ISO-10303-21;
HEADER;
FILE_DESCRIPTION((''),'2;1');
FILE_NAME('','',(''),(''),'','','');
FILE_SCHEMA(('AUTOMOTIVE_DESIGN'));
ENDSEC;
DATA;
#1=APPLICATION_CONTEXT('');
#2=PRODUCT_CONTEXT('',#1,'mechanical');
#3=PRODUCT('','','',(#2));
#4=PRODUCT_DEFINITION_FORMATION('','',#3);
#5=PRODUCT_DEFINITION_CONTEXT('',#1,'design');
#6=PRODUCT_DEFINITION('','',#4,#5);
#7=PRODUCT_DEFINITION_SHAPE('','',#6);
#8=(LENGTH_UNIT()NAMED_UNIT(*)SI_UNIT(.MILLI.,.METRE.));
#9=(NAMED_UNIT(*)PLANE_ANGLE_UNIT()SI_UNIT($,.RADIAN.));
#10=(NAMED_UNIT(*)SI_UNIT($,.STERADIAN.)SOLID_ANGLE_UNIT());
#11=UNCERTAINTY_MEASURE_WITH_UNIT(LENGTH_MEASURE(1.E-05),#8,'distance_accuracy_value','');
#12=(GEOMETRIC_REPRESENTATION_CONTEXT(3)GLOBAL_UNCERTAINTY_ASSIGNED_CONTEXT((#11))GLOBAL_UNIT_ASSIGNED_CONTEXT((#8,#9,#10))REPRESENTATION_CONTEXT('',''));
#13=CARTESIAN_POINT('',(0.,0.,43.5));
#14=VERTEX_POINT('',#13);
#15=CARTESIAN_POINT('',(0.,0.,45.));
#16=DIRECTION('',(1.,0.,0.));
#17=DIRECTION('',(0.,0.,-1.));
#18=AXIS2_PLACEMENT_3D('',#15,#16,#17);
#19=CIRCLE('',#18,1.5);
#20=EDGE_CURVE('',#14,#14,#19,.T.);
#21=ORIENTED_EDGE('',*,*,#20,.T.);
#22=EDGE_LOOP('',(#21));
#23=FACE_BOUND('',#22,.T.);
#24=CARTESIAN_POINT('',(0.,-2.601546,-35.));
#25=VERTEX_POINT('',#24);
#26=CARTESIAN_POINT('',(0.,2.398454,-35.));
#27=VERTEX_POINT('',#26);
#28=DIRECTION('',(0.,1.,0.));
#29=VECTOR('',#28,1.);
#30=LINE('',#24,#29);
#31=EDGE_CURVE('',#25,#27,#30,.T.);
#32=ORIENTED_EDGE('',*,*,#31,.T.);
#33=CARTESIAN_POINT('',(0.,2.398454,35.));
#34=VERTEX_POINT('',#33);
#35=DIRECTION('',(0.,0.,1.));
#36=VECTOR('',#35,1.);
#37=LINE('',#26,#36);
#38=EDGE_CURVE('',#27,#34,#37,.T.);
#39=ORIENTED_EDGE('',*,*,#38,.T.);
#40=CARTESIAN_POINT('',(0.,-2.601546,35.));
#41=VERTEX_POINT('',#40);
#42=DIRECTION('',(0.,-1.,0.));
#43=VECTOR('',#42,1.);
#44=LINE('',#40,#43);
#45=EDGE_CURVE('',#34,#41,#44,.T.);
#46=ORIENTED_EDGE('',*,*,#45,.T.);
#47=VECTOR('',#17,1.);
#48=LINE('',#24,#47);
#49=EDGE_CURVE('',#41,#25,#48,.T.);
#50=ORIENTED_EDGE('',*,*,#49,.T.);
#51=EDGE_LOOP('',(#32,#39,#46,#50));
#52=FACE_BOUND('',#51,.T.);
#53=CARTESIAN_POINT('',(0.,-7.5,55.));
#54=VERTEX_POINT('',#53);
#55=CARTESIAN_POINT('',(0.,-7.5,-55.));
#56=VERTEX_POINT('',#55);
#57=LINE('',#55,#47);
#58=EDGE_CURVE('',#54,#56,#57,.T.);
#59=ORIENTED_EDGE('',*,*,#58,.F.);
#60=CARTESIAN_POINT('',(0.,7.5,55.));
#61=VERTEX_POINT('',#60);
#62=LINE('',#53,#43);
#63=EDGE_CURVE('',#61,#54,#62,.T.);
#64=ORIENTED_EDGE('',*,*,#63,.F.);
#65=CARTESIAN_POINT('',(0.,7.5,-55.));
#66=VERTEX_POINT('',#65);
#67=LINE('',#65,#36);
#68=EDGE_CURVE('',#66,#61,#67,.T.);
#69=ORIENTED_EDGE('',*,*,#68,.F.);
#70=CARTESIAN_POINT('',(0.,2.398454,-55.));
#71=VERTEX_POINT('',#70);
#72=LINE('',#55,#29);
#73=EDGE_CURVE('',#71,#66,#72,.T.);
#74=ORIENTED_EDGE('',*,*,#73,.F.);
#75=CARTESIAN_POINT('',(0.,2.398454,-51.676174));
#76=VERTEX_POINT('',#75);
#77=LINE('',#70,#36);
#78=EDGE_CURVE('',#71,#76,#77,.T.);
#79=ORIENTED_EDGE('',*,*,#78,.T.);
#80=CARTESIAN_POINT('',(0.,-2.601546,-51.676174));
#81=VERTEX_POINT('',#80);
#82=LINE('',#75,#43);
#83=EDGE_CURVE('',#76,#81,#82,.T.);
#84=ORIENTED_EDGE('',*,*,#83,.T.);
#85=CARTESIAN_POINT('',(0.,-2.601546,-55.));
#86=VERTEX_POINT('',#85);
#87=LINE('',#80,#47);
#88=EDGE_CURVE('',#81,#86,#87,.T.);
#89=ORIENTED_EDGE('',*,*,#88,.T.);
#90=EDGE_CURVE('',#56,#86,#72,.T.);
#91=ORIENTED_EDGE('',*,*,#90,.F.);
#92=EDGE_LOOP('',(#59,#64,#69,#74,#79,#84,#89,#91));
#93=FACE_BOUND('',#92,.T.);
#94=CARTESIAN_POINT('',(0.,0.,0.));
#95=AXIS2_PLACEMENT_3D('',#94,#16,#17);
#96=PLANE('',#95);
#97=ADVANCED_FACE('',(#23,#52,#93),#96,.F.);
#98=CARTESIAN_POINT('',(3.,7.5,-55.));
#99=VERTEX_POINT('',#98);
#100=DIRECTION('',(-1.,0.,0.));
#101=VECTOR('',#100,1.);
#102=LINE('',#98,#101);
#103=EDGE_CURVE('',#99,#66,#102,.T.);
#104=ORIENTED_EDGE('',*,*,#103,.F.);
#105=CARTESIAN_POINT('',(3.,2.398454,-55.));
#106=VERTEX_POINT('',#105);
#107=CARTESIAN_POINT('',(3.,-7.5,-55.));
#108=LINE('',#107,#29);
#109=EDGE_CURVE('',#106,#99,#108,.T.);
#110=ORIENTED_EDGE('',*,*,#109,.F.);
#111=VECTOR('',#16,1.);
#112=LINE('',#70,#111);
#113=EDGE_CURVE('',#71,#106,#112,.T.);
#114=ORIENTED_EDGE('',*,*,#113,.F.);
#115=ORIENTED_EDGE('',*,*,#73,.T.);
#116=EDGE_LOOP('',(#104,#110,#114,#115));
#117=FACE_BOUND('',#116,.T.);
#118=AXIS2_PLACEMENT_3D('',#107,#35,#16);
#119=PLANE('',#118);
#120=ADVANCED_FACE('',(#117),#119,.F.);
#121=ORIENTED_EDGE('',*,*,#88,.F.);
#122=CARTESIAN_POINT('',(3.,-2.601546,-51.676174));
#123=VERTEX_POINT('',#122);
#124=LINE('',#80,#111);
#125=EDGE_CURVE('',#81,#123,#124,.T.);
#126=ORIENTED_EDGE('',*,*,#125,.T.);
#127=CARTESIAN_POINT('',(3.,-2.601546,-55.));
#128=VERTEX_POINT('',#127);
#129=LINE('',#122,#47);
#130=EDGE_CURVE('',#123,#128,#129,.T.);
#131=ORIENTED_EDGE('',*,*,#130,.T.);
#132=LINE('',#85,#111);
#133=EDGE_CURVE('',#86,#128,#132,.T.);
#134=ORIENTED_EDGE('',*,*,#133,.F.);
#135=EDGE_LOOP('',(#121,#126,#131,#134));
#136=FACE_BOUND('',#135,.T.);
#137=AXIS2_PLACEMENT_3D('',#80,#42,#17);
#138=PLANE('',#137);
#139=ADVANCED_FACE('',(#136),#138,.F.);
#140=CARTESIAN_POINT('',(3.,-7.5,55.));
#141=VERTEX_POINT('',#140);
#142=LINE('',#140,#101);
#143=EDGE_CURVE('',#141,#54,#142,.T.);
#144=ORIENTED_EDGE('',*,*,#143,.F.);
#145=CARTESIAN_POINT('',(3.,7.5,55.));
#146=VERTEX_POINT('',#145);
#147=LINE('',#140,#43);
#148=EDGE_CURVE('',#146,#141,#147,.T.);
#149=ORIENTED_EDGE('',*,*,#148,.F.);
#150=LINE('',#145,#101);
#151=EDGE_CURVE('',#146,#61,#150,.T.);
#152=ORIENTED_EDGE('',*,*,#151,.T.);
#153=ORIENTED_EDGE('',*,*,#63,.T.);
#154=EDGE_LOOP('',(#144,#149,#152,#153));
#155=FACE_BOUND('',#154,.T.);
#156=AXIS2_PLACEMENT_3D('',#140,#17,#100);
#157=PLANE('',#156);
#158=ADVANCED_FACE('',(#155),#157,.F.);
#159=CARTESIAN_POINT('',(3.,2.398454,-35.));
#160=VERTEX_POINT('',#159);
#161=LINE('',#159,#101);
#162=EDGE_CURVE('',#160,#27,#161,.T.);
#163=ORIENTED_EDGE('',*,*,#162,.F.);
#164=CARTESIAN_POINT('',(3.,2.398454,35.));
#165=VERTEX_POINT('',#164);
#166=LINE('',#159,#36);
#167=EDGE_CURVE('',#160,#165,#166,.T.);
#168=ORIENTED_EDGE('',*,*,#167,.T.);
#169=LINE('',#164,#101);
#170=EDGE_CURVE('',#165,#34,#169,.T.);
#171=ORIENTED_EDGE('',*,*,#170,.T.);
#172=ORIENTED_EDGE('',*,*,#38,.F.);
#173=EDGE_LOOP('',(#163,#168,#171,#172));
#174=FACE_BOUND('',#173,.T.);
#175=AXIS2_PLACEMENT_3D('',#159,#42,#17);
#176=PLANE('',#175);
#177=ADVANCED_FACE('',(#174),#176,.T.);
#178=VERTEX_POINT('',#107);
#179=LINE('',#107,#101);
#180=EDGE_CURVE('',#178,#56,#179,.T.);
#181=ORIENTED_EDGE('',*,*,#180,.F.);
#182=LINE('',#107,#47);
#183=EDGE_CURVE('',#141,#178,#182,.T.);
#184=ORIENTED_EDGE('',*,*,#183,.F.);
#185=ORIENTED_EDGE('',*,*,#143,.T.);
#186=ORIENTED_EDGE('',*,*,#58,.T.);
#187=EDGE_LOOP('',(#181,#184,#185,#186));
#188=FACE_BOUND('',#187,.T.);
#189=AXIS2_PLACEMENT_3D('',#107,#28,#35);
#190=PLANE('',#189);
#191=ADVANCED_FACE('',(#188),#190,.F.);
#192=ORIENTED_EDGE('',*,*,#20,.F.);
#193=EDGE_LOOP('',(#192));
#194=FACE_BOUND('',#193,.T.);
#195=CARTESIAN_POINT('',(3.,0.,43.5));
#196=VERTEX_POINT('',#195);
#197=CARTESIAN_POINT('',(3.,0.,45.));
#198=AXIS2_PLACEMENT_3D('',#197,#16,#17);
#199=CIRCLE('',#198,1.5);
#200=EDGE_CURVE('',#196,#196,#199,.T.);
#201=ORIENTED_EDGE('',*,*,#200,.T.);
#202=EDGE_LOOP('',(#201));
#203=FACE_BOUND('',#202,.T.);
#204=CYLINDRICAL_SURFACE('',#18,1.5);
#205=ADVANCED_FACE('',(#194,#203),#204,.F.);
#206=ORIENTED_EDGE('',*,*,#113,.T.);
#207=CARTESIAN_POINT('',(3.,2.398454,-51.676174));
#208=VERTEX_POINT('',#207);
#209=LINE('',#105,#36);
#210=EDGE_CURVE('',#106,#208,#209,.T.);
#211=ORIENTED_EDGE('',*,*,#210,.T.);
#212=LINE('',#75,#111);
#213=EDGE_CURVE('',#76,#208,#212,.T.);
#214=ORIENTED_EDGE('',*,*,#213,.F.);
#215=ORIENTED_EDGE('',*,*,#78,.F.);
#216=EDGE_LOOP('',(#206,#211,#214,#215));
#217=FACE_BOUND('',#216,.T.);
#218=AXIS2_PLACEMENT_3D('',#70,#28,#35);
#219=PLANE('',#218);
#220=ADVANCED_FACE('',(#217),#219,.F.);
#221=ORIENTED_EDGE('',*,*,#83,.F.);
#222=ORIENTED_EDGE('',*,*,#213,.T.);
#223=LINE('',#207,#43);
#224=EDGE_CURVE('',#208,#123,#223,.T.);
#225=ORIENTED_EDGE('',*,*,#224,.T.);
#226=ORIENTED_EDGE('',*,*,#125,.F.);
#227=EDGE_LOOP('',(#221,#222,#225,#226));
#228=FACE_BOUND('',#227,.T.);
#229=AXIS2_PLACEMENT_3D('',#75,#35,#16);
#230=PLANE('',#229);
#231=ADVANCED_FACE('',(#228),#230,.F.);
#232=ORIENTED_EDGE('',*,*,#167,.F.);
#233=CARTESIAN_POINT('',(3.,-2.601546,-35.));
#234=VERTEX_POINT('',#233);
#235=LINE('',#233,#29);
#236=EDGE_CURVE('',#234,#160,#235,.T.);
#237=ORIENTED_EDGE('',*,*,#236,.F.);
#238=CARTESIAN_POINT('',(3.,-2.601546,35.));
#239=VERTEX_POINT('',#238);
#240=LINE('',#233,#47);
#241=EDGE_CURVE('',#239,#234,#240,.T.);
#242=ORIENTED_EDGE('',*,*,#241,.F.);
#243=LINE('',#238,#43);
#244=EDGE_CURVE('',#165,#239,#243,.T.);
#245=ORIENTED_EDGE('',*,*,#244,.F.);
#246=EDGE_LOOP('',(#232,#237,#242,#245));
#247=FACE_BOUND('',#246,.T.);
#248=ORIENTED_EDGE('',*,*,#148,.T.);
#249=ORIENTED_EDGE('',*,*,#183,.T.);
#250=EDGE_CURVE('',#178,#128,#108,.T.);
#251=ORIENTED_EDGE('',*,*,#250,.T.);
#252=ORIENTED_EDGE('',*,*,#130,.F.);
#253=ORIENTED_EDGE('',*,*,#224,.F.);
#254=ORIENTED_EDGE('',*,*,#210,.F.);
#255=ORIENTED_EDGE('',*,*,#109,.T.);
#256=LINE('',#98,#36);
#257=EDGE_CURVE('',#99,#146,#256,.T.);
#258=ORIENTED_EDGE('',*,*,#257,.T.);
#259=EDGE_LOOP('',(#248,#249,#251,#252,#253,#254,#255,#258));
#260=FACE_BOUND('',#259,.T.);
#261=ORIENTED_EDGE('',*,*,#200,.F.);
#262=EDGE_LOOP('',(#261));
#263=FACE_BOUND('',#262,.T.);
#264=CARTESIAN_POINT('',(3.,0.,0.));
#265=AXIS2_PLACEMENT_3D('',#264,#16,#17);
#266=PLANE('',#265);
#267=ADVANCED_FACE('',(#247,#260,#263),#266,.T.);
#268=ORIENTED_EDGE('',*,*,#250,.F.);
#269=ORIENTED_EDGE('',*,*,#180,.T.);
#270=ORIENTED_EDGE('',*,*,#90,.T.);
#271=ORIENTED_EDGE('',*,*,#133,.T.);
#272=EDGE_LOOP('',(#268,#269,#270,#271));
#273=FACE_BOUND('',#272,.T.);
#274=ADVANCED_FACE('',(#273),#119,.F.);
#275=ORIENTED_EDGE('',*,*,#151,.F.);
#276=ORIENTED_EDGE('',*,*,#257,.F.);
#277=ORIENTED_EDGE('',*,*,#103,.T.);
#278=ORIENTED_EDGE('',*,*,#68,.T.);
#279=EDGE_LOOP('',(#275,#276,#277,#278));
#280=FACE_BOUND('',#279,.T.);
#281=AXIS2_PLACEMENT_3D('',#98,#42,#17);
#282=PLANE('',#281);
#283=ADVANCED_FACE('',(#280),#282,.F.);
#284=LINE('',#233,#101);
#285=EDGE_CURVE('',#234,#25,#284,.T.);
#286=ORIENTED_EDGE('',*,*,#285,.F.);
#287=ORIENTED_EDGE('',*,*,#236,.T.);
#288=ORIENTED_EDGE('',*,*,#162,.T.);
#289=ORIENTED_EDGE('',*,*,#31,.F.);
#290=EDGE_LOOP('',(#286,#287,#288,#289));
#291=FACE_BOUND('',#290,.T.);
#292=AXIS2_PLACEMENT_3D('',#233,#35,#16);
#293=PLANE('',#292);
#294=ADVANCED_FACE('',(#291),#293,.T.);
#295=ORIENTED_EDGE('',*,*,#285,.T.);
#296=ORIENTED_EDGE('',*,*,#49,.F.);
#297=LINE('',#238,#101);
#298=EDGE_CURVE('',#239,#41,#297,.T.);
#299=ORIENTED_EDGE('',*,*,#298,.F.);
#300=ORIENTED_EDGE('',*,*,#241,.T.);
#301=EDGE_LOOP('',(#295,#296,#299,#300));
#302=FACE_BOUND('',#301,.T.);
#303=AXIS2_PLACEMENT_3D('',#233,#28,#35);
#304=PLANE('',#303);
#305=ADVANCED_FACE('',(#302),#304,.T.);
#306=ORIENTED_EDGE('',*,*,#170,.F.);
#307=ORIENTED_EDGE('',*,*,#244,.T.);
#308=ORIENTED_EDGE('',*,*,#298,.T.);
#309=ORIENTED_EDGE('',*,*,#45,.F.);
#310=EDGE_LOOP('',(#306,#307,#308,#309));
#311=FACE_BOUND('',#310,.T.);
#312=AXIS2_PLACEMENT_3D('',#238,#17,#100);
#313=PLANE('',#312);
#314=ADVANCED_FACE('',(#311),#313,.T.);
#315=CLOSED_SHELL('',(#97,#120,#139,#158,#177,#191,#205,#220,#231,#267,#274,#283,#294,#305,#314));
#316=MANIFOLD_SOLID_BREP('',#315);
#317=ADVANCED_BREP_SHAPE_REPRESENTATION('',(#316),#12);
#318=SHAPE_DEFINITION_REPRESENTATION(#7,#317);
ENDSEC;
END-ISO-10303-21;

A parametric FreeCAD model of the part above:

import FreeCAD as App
import Part
import Sketcher
from FreeCAD import Vector
Q = App.Units.Quantity

doc = App.newDocument("Part")
params = doc.addObject("Spreadsheet::Sheet", "Params")
for row, (alias, value) in enumerate([
    ("sketch1_width", "15 mm"),
    ("sketch1_width2", "5 mm"),
    ("sketch1_height", "110 mm"),
    ("sketch1_height2", "70 mm"),
    ("pad1_length", "3 mm"),
    ("sketch2_diameter", "3 mm"),
    ("sketch2_width", "5 mm"),
], start=1):
    params.set(f"A{row}", alias)
    params.set(f"B{row}", "=" + value)
    params.setAlias(f"B{row}", alias)

body = doc.addObject("PartDesign::Body", "Body")

sketch1 = body.newObject("Sketcher::SketchObject", "Sketch")
sketch1.AttachmentSupport = (doc.getObject("YZ_Plane"), [""])
sketch1.MapMode = "FlatFace"
sketch1.addGeometry(Part.LineSegment(Vector(8, 55, 0), Vector(-8, 55, 0)), False)
sketch1.addGeometry(Part.LineSegment(Vector(-8, 55, 0), Vector(-8, -55, 0)), False)
sketch1.addGeometry(Part.LineSegment(Vector(-8, -55, 0), Vector(8, -55, 0)), False)
sketch1.addGeometry(Part.LineSegment(Vector(8, -55, 0), Vector(8, 55, 0)), False)
sketch1.addGeometry(Part.LineSegment(Vector(-3, -35, 0), Vector(-3, 35, 0)), False)
sketch1.addGeometry(Part.LineSegment(Vector(-3, 35, 0), Vector(2, 35, 0)), False)
sketch1.addGeometry(Part.LineSegment(Vector(2, 35, 0), Vector(2, -35, 0)), False)
sketch1.addGeometry(Part.LineSegment(Vector(2, -35, 0), Vector(-3, -35, 0)), False)
sketch1.addConstraint(Sketcher.Constraint("Coincident", 0, 2, 1, 1))
sketch1.addConstraint(Sketcher.Constraint("Coincident", 1, 2, 2, 1))
sketch1.addConstraint(Sketcher.Constraint("Coincident", 2, 2, 3, 1))
sketch1.addConstraint(Sketcher.Constraint("Coincident", 3, 2, 0, 1))
sketch1.addConstraint(Sketcher.Constraint("Coincident", 4, 2, 5, 1))
sketch1.addConstraint(Sketcher.Constraint("Coincident", 5, 2, 6, 1))
sketch1.addConstraint(Sketcher.Constraint("Coincident", 6, 2, 7, 1))
sketch1.addConstraint(Sketcher.Constraint("Coincident", 7, 2, 4, 1))
sketch1.addConstraint(Sketcher.Constraint("Horizontal", 0))
sketch1.addConstraint(Sketcher.Constraint("Vertical", 1))
sketch1.addConstraint(Sketcher.Constraint("Horizontal", 2))
sketch1.addConstraint(Sketcher.Constraint("Vertical", 3))
sketch1.addConstraint(Sketcher.Constraint("Vertical", 4))
sketch1.addConstraint(Sketcher.Constraint("Horizontal", 5))
sketch1.addConstraint(Sketcher.Constraint("Vertical", 6))
sketch1.addConstraint(Sketcher.Constraint("Horizontal", 7))
sketch1.addConstraint(Sketcher.Constraint("Symmetric", 0, 2, 2, 2, -1, 1))
sketch1.addConstraint(Sketcher.Constraint("DistanceX", 0, 2, 0, 1, Q("15 mm")))
sketch1.addConstraint(Sketcher.Constraint("DistanceX", 5, 1, 5, 2, Q("5 mm")))
sketch1.addConstraint(Sketcher.Constraint("DistanceY", 1, 2, 1, 1, Q("110 mm")))
sketch1.addConstraint(Sketcher.Constraint("DistanceY", 4, 1, 4, 2, Q("70 mm")))
sketch1.addConstraint(Sketcher.Constraint("DistanceY", -1, 1, 4, 2, Q("35 mm")))
sketch1.addConstraint(Sketcher.Constraint("DistanceX", 4, 2, -1, 1, Q("2.601546 mm")))
sketch1.setExpression("Constraints[17]", "Params.sketch1_width")
sketch1.setExpression("Constraints[18]", "Params.sketch1_width2")
sketch1.setExpression("Constraints[19]", "Params.sketch1_height")
sketch1.setExpression("Constraints[20]", "Params.sketch1_height2")
pad1 = body.newObject("PartDesign::Pad", "Pad")
pad1.Profile = sketch1
pad1.setExpression("Length", "Params.pad1_length")

sketch2 = body.newObject("Sketcher::SketchObject", "Sketch001")
sketch2.AttachmentSupport = (doc.getObject("YZ_Plane"), [""])
sketch2.MapMode = "FlatFace"
sketch2.AttachmentOffset = App.Placement(Vector(0, 0, 3), App.Rotation())
sketch2.addGeometry(Part.Circle(Vector(0, 45, 0), Vector(0, 0, 1), 1.5), False)
sketch2.addGeometry(Part.LineSegment(Vector(2.4, -51.7, 0), Vector(-2.6, -51.7, 0)), False)
sketch2.addGeometry(Part.LineSegment(Vector(-2.6, -51.7, 0), Vector(-2.6, -55, 0)), False)
sketch2.addGeometry(Part.LineSegment(Vector(-2.6, -55, 0), Vector(2.4, -55, 0)), False)
sketch2.addGeometry(Part.LineSegment(Vector(2.4, -55, 0), Vector(2.4, -51.7, 0)), False)
sketch2.addConstraint(Sketcher.Constraint("Coincident", 1, 2, 2, 1))
sketch2.addConstraint(Sketcher.Constraint("Coincident", 2, 2, 3, 1))
sketch2.addConstraint(Sketcher.Constraint("Coincident", 3, 2, 4, 1))
sketch2.addConstraint(Sketcher.Constraint("Coincident", 4, 2, 1, 1))
sketch2.addConstraint(Sketcher.Constraint("Horizontal", 1))
sketch2.addConstraint(Sketcher.Constraint("Vertical", 2))
sketch2.addConstraint(Sketcher.Constraint("Horizontal", 3))
sketch2.addConstraint(Sketcher.Constraint("Vertical", 4))
sketch2.addConstraint(Sketcher.Constraint("PointOnObject", 0, 3, -2))
sketch2.addConstraint(Sketcher.Constraint("Diameter", 0, Q("3 mm")))
sketch2.addConstraint(Sketcher.Constraint("DistanceX", 1, 2, 1, 1, Q("5 mm")))
sketch2.addConstraint(Sketcher.Constraint("DistanceY", -1, 1, 0, 3, Q("45 mm")))
sketch2.addConstraint(Sketcher.Constraint("DistanceY", 2, 2, -1, 1, Q("55 mm")))
sketch2.addConstraint(Sketcher.Constraint("DistanceY", 2, 2, 2, 1, Q("3.323826 mm")))
sketch2.addConstraint(Sketcher.Constraint("DistanceX", 1, 2, -1, 1, Q("2.601546 mm")))
sketch2.setExpression("Constraints[9]", "Params.sketch2_diameter")
sketch2.setExpression("Constraints[10]", "Params.sketch2_width")
pocket1 = body.newObject("PartDesign::Pocket", "Pocket")
pocket1.Profile = sketch2
pocket1.Type = "ThroughAll"

doc.recompute()
